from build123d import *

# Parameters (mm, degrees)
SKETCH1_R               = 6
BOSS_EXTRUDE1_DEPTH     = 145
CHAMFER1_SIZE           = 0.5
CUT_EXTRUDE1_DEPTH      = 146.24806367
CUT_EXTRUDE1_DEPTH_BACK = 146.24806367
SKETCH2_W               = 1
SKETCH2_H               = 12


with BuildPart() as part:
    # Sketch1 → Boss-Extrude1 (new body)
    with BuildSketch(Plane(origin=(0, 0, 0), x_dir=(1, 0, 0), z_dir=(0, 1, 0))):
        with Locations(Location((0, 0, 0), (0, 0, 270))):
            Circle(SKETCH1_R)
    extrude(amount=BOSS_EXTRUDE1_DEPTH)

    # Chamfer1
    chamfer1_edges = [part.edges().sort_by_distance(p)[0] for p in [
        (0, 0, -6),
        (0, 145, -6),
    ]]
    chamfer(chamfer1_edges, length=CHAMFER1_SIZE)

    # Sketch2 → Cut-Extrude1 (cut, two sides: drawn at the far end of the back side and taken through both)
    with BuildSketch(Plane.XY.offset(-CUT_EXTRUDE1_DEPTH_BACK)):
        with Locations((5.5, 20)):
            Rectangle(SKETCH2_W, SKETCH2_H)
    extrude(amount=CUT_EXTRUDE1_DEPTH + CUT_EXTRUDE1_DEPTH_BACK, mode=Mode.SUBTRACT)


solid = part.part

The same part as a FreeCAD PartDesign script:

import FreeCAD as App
import Part
import Sketcher

V = App.Vector


def edges_at(feature, points):
    """Names of the edges that pass closest to the given points."""
    edges = feature.Shape.Edges
    near = lambda p: min(range(len(edges)), key=lambda i: edges[i].distToShape(Part.Vertex(*p))[0])
    return sorted({f"Edge{near(p) + 1}" for p in points})


def add_polygon(sketch, points):
    """Adds a closed chain of lines whose ends are joined by coincident constraints."""
    first, n = sketch.GeometryCount, len(points)
    for a, b in zip(points, points[1:] + points[:1]):
        sketch.addGeometry(Part.LineSegment(App.Vector(*a, 0), App.Vector(*b, 0)), False)
    for i in range(n):
        sketch.addConstraint(Sketcher.Constraint("Coincident", first + i, 2, first + (i + 1) % n, 1))

doc = App.newDocument("Part")
body = doc.addObject("PartDesign::Body", "Body")

sketch1 = body.newObject("Sketcher::SketchObject", "Sketch")
sketch1.AttachmentSupport = (doc.getObject("XZ_Plane"), [""])
sketch1.MapMode = "FlatFace"
sketch1.addGeometry(Part.Circle(V(0, 0, 0), V(0, 0, 1), 6), False)
sketch1.addConstraint([
    Sketcher.Constraint("Coincident", 0, 3, -1, 1),
    Sketcher.Constraint("Diameter", 0, 12.0),
])
pad1 = body.newObject("PartDesign::Pad", "Pad")
pad1.Profile = sketch1
pad1.Length = 145
pad1.Reversed = True
doc.recompute()

chamfer = body.newObject("PartDesign::Chamfer", "Chamfer")
chamfer.Base = (pad1, edges_at(pad1, [(0, 0, -6), (0, 145, -6)]))
chamfer.Size = 0.5

sketch2 = body.newObject("Sketcher::SketchObject", "Sketch001")
sketch2.AttachmentSupport = (doc.getObject("XY_Plane"), [""])
sketch2.MapMode = "FlatFace"
add_polygon(sketch2, [(5, 26), (5, 14), (6, 14), (6, 26)])
sketch2.addConstraint([
    Sketcher.Constraint("Vertical", 0),
    Sketcher.Constraint("Horizontal", 1),
    Sketcher.Constraint("Vertical", 2),
    Sketcher.Constraint("Horizontal", 3),
    Sketcher.Constraint("DistanceX", 1, 1, 1, 2, 1.0),
    Sketcher.Constraint("DistanceY", 0, 2, 0, 1, 12.0),
    Sketcher.Constraint("DistanceX", -1, 1, 0, 2, 5.0),
    Sketcher.Constraint("DistanceY", -1, 1, 0, 2, 14.0),
])
pocket1 = body.newObject("PartDesign::Pocket", "Pocket")
pocket1.Profile = sketch2
pocket1.Type = "ThroughAll"
pocket1.Midplane = True

doc.recompute()
